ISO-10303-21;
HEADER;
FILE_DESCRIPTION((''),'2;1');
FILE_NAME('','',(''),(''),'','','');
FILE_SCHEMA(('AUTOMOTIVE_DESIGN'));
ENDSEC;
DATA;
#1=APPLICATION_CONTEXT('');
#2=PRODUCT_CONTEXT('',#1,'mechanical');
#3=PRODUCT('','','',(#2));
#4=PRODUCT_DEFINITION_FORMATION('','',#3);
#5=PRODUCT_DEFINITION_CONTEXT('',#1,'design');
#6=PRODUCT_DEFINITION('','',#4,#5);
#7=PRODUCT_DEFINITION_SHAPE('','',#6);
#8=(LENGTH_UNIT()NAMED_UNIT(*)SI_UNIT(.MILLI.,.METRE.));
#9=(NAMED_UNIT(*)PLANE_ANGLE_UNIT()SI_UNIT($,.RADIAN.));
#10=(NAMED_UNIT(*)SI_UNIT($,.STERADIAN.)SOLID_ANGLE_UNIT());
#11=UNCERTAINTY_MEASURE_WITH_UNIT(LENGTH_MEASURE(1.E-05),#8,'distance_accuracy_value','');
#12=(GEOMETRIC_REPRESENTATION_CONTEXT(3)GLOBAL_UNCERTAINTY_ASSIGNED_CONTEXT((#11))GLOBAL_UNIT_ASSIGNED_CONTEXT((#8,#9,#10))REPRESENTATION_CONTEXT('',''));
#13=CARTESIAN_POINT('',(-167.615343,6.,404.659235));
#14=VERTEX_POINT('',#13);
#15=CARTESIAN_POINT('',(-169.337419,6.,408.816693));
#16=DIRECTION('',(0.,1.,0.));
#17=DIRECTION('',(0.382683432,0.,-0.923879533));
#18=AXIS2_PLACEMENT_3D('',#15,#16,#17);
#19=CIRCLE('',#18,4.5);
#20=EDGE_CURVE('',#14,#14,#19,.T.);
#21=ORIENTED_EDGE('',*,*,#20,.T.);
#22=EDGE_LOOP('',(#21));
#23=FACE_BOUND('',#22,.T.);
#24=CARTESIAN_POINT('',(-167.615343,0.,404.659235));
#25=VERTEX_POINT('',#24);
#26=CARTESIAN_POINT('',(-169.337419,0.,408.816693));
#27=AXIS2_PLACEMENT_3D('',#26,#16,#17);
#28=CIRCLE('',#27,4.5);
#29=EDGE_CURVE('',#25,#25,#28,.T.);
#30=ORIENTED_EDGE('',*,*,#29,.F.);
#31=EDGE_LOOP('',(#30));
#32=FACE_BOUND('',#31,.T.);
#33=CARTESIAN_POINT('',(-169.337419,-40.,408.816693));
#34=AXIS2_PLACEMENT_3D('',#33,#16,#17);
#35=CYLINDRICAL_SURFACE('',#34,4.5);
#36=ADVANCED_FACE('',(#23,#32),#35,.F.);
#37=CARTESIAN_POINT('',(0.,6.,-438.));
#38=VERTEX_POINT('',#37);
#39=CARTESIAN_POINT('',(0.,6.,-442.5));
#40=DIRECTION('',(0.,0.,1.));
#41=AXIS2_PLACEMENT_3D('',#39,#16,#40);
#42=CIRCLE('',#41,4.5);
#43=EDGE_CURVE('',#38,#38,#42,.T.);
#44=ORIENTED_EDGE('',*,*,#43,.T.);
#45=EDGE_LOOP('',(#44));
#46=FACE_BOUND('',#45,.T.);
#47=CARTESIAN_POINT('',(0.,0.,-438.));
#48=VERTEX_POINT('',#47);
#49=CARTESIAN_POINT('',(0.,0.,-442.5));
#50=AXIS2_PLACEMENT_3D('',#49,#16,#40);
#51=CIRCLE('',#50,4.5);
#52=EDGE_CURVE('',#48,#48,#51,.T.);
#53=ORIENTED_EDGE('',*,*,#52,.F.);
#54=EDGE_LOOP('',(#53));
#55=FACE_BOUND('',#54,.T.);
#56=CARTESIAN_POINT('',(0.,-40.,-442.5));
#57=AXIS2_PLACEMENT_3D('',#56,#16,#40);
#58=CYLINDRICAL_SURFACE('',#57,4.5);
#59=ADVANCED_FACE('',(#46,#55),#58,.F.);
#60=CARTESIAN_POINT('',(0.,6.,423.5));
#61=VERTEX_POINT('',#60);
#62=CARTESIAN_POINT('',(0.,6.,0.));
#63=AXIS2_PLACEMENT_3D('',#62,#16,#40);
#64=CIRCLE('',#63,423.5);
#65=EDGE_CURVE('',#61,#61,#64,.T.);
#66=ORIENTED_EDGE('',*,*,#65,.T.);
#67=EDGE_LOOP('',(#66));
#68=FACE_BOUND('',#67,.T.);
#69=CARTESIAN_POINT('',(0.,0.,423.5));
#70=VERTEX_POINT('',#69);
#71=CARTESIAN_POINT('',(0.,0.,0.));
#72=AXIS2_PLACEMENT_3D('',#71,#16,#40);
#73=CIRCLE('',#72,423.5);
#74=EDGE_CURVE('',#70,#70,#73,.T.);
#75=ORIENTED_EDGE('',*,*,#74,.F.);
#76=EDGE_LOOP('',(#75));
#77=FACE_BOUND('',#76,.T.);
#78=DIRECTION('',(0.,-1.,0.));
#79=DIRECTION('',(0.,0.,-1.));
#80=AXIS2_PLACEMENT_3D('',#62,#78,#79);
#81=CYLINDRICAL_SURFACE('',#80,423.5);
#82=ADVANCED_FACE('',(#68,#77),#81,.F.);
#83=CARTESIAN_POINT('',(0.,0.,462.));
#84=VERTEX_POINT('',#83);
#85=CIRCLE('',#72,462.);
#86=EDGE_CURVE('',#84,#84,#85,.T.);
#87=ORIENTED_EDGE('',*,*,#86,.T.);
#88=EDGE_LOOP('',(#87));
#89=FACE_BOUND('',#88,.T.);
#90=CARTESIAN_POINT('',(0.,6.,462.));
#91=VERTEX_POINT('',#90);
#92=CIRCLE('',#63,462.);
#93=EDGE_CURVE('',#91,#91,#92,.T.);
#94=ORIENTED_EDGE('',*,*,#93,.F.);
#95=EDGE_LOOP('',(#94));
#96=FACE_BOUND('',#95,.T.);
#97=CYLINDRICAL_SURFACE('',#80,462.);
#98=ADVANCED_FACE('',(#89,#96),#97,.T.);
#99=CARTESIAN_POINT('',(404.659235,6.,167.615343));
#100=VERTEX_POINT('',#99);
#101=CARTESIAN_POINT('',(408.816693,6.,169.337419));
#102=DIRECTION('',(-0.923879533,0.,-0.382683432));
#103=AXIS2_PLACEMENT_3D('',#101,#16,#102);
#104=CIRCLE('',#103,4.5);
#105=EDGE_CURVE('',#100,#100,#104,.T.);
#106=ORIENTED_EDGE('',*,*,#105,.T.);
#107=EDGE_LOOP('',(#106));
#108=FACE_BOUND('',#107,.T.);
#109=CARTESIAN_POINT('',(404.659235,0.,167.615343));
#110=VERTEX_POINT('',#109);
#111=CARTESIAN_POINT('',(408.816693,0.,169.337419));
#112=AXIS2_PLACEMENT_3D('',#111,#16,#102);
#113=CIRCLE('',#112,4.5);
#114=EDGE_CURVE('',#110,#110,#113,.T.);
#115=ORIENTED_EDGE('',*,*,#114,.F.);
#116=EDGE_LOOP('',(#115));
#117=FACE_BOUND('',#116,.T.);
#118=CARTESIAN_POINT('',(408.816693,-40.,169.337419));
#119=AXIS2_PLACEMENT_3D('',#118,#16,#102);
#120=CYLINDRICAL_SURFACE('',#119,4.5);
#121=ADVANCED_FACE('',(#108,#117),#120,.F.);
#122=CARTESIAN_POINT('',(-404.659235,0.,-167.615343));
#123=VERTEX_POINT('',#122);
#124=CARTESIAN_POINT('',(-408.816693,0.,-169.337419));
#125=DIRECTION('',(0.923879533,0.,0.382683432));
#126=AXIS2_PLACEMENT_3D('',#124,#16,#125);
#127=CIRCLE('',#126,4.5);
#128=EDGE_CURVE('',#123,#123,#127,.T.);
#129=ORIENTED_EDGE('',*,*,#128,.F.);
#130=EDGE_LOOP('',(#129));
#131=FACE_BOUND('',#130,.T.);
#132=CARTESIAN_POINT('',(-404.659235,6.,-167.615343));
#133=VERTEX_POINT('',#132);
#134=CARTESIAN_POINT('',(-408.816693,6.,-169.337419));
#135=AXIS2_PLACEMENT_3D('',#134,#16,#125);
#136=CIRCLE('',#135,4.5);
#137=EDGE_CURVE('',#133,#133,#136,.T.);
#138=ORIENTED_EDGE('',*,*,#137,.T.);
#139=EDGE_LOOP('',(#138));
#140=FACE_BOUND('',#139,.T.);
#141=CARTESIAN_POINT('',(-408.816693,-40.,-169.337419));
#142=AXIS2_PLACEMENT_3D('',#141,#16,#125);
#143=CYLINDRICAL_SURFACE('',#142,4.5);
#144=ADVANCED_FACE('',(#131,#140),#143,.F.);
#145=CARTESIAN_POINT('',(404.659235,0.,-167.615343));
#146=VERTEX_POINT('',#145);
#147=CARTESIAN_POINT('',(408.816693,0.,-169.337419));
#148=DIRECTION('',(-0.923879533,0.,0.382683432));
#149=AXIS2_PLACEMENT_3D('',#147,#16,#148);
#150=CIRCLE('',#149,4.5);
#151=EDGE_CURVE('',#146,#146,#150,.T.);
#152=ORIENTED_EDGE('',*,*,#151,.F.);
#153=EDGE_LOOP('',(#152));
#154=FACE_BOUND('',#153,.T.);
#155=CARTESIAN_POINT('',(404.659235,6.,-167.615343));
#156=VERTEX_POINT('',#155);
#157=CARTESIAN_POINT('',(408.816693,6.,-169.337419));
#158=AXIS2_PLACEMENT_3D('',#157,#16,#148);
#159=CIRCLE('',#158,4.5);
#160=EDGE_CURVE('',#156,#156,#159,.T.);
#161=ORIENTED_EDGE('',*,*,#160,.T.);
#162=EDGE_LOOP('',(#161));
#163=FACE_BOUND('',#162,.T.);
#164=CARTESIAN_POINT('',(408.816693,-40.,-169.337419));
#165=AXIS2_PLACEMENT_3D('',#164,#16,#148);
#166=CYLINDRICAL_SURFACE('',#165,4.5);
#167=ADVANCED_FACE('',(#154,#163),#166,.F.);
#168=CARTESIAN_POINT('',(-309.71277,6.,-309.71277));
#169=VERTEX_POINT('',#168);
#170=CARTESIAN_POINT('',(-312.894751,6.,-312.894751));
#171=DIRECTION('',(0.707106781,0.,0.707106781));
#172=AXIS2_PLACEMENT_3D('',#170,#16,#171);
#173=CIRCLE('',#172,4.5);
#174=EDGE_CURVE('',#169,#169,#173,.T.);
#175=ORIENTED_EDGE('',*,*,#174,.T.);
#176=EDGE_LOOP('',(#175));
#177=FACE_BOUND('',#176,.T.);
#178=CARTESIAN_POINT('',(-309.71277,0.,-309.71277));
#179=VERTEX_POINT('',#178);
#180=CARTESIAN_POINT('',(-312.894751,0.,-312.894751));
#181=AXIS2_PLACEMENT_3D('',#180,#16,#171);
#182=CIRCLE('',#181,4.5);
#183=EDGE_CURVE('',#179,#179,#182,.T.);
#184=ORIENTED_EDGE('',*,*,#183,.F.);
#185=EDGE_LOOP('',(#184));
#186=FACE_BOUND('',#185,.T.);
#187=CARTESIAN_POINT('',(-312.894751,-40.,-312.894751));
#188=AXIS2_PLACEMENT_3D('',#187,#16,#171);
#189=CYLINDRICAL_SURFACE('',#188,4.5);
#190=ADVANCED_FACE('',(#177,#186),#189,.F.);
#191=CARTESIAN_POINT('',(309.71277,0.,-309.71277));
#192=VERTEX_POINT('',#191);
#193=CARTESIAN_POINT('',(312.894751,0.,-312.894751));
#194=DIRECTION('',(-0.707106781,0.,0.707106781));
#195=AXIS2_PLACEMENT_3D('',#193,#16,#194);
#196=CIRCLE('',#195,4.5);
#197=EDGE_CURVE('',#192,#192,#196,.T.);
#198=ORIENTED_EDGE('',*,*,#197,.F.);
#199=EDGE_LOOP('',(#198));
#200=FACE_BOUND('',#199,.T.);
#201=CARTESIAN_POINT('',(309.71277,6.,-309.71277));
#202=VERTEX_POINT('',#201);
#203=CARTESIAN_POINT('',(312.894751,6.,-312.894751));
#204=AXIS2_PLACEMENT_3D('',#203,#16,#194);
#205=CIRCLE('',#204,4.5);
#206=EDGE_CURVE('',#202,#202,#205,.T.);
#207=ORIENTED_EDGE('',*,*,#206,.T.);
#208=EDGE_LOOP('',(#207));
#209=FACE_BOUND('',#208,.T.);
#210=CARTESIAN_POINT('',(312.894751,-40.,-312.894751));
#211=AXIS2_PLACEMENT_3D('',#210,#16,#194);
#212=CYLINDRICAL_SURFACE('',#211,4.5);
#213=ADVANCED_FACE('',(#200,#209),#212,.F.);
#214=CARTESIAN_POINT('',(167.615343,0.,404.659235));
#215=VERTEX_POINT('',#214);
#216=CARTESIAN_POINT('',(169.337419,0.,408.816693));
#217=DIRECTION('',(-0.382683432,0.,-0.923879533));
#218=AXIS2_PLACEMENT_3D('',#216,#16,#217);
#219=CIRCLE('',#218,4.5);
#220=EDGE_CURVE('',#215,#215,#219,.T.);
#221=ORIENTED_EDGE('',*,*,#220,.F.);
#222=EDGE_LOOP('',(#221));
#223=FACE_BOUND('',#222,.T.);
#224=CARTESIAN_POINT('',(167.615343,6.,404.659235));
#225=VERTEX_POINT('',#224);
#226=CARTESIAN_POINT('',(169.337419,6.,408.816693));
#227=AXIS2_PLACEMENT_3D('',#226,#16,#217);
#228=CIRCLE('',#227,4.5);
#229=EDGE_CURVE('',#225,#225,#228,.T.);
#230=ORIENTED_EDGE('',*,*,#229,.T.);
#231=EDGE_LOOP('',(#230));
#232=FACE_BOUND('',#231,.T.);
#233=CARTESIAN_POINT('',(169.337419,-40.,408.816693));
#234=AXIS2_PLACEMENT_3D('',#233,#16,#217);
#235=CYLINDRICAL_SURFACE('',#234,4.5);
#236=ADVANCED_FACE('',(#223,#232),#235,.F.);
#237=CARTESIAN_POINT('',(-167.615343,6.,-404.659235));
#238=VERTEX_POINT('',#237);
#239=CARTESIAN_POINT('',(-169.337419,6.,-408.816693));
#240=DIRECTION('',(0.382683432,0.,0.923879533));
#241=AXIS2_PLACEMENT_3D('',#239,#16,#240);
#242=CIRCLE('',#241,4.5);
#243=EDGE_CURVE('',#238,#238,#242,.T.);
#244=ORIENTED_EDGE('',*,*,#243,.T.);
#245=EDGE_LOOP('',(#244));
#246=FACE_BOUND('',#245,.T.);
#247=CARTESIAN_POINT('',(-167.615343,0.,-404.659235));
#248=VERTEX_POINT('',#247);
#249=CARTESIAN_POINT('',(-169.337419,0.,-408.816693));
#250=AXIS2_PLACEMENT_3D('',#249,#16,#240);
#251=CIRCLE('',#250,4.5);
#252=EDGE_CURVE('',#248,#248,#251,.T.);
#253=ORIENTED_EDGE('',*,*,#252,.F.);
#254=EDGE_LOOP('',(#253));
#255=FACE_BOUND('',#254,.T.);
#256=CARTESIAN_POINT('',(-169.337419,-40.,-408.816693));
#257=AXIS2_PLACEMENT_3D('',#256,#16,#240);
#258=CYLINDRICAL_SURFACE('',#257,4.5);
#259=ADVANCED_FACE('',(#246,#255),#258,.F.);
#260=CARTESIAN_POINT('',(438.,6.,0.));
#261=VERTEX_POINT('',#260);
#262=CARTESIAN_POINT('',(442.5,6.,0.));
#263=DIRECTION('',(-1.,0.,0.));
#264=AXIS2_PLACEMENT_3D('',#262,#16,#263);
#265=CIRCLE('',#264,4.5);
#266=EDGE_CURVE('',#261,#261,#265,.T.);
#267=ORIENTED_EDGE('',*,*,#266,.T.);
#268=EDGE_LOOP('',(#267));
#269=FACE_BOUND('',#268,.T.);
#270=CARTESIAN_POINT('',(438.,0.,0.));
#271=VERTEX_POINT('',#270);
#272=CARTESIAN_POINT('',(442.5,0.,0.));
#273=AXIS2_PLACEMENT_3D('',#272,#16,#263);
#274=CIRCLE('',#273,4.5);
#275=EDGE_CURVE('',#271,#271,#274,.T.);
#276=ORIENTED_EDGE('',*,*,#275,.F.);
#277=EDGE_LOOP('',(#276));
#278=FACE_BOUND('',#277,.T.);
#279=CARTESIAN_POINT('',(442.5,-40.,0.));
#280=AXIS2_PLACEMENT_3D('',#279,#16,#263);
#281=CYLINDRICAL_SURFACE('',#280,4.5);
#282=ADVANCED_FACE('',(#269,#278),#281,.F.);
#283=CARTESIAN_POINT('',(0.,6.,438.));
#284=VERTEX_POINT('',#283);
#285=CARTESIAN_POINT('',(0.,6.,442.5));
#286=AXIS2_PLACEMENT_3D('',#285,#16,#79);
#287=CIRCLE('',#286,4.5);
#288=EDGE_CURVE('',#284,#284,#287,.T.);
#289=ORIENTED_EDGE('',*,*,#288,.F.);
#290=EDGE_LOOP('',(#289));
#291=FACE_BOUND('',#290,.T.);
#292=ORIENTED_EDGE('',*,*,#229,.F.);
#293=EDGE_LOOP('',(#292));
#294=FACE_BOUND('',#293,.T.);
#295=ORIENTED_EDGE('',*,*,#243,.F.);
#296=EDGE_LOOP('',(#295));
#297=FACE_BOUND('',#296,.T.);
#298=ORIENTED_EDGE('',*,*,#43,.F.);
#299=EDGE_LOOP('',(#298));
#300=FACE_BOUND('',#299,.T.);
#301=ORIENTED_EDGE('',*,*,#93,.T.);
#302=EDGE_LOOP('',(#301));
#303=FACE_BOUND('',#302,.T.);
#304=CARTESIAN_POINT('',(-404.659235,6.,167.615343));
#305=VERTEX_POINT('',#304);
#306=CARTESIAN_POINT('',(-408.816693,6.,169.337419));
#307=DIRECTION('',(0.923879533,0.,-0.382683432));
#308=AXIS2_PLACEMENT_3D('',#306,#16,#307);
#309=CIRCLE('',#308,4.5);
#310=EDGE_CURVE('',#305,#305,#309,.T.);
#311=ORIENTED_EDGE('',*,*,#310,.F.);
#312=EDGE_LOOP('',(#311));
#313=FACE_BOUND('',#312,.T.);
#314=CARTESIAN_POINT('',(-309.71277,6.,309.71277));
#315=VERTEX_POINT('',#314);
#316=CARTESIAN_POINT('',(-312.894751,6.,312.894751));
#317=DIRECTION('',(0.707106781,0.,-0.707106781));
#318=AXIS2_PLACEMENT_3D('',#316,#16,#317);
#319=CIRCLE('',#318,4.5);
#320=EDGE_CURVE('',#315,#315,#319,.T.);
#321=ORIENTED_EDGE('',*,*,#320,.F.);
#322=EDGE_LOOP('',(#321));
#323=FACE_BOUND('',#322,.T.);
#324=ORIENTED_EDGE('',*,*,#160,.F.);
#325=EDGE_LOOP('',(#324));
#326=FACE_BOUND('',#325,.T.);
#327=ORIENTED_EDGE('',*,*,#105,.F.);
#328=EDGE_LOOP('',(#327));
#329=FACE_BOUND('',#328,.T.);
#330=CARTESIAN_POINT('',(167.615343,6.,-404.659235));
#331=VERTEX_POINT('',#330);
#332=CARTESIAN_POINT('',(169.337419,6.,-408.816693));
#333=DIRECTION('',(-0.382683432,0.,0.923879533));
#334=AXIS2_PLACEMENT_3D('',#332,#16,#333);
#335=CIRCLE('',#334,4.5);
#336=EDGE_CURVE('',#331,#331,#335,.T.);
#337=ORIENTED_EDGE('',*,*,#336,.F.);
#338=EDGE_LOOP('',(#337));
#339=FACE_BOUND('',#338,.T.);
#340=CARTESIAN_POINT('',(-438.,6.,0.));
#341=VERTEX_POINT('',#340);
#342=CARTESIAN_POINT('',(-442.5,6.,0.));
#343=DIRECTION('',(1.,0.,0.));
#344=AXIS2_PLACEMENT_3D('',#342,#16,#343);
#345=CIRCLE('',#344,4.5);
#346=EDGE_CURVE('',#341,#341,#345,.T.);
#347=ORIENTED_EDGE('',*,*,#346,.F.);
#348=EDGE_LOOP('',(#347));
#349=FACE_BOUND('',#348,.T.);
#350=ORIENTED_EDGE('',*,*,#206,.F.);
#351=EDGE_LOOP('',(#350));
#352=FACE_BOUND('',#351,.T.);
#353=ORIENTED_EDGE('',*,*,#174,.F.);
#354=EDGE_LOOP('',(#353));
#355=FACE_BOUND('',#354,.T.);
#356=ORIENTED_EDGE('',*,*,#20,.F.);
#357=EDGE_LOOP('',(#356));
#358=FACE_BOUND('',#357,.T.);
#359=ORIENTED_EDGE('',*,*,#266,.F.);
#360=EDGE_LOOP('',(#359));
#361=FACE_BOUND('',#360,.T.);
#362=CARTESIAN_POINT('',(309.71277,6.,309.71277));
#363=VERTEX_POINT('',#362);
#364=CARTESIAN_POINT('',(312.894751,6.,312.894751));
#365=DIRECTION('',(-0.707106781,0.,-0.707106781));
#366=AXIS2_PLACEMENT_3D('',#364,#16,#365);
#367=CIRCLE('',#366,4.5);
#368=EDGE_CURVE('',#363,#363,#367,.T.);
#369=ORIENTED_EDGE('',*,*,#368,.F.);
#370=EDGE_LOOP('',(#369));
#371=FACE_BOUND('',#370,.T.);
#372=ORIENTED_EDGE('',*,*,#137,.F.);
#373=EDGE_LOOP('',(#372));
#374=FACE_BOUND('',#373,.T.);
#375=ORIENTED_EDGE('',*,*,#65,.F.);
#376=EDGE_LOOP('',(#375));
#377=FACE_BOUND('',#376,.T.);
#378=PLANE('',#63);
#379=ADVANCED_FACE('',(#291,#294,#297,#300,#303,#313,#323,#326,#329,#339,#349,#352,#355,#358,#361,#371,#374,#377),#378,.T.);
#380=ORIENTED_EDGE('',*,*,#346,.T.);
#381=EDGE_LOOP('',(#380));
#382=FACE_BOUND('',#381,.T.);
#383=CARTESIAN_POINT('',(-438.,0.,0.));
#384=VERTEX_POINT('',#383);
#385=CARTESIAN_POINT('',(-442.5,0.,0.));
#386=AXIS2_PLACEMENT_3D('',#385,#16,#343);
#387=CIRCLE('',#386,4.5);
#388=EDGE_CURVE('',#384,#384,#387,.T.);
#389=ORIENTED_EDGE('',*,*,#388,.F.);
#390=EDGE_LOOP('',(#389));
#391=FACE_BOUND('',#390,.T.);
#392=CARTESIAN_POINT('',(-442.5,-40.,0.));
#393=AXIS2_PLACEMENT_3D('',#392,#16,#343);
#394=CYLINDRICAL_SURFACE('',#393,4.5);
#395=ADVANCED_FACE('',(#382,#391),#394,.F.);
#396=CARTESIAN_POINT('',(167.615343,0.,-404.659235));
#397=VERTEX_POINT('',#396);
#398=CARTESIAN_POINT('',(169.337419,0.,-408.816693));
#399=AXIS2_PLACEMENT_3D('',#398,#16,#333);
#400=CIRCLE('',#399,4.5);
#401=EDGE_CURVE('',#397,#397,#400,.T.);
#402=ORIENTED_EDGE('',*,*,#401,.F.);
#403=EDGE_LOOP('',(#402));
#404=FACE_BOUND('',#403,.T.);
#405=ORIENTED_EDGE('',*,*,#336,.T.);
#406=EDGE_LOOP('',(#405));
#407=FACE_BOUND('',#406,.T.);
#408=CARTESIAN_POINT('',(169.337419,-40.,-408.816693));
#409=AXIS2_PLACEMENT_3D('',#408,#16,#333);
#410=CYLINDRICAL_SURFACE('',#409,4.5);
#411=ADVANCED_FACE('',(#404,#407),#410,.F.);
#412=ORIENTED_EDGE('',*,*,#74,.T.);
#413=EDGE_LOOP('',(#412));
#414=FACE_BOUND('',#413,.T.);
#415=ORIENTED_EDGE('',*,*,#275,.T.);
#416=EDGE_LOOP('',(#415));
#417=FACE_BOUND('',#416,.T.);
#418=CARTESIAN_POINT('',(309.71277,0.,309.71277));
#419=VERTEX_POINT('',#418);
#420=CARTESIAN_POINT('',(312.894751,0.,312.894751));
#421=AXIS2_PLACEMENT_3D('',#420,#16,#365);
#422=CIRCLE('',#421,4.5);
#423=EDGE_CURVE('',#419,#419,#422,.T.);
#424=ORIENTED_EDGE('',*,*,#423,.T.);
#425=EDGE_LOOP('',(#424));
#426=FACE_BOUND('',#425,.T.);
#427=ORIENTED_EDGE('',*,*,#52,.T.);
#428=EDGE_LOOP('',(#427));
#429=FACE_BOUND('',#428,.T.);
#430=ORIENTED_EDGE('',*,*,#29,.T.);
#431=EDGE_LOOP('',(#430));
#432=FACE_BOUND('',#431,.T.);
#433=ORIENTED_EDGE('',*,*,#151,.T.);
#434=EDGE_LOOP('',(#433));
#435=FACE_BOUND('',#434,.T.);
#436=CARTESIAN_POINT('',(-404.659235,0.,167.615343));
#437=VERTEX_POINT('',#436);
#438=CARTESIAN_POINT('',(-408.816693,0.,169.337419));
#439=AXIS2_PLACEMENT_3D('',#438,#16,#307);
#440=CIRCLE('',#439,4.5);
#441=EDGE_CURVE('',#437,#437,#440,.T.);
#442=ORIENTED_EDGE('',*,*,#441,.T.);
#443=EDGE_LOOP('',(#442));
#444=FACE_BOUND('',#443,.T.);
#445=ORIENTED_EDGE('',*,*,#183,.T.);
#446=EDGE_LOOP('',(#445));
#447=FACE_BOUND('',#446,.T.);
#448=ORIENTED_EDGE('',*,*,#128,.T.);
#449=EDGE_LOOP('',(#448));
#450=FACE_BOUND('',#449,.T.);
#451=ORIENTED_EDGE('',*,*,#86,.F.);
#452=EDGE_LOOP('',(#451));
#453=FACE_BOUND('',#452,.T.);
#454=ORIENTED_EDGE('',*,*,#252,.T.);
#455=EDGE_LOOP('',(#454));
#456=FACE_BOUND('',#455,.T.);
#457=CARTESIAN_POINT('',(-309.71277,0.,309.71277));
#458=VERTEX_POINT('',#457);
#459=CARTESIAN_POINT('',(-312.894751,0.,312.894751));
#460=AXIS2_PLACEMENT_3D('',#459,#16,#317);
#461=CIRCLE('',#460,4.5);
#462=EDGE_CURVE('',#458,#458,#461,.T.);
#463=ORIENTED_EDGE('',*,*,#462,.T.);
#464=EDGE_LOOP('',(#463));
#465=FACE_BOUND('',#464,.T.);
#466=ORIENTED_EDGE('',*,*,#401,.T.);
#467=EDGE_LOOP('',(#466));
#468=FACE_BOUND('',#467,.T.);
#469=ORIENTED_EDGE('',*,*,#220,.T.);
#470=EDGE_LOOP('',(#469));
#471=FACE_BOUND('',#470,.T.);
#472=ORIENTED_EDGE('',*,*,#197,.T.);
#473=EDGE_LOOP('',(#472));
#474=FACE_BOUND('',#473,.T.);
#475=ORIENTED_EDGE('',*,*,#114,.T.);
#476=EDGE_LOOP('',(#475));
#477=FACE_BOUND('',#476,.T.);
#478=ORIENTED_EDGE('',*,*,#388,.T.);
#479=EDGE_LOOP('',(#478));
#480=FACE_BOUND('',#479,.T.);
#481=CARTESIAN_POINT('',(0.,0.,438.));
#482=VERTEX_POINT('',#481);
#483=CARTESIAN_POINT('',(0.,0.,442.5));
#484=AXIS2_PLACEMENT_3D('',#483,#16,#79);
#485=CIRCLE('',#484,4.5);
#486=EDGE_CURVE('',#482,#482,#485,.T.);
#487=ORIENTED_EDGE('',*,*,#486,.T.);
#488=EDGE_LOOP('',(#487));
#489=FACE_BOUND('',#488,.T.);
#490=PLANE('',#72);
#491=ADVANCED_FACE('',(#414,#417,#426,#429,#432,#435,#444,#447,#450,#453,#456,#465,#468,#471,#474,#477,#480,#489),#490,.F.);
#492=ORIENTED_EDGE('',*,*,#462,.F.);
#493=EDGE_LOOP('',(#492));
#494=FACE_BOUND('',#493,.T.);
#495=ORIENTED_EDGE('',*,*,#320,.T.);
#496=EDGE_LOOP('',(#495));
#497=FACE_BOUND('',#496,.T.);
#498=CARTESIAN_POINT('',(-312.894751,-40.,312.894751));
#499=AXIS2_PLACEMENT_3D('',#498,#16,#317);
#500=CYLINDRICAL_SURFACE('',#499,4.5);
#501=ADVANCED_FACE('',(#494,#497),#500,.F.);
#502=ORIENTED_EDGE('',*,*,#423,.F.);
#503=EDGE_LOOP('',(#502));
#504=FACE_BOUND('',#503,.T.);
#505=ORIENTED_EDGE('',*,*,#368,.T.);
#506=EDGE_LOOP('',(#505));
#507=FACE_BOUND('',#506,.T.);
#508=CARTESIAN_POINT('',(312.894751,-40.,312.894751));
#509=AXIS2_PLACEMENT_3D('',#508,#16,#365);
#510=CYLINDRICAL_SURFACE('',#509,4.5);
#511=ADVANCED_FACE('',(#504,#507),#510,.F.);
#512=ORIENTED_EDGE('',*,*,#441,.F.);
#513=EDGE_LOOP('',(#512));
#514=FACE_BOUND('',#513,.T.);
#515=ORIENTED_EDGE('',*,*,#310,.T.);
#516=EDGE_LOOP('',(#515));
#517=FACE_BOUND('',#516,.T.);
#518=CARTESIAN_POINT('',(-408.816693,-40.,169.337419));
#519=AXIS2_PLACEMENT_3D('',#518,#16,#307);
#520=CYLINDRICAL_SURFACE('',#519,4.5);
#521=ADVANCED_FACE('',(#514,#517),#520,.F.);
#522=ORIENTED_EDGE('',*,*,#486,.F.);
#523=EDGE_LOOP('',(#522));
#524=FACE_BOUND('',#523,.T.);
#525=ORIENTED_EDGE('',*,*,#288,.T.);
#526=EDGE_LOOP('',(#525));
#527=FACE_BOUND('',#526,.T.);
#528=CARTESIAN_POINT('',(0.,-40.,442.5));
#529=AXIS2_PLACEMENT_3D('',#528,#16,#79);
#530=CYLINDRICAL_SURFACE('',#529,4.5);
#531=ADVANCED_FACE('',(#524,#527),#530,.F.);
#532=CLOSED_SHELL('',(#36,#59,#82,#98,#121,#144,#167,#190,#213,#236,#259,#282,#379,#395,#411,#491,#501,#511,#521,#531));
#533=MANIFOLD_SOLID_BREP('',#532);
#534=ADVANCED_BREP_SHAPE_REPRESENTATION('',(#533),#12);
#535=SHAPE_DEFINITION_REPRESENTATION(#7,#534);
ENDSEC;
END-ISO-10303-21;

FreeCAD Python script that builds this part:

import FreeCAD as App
import Part
import Sketcher
from FreeCAD import Vector

doc = App.newDocument("Part")
body = doc.addObject("PartDesign::Body", "Body")

sketch1 = doc.addObject("Sketcher::SketchObject", "Sketch")
body.addObject(sketch1)
sketch1.AttachmentSupport = (doc.XZ_Plane, [""])
sketch1.MapMode = "FlatFace"
sketch1.addGeometry([
    Part.Circle(Vector(0, 0, 0), Vector(0, 0, 1), 462),
    Part.Circle(Vector(0, 0, 0), Vector(0, 0, 1), 424),
], False)
sketch1.addConstraint([
    Sketcher.Constraint("Coincident", 0, 3, -1, 1),
    Sketcher.Constraint("Coincident", 1, 3, -1, 1),
    Sketcher.Constraint("Diameter", 0, 924.0),
    Sketcher.Constraint("Diameter", 1, 847.0),
])
pad1 = doc.addObject("PartDesign::Pad", "Pad")
body.addObject(pad1)
pad1.Profile = sketch1
pad1.Length = 6
pad1.Reversed = True

sketch2 = doc.addObject("Sketcher::SketchObject", "Sketch001")
body.addObject(sketch2)
sketch2.AttachmentSupport = (doc.XZ_Plane, [""])
sketch2.MapMode = "FlatFace"
sketch2.AttachmentOffset = App.Placement(Vector(0, 0, -6), App.Rotation())
sketch2.addGeometry(Part.Circle(Vector(0, -442.5, 0), Vector(0, 0, 1), 4.5), False)
sketch2.addConstraint([
    Sketcher.Constraint("PointOnObject", 0, 3, -2),
    Sketcher.Constraint("Diameter", 0, 9.0),
    Sketcher.Constraint("DistanceY", 0, 3, -1, 1, 442.5),
])
pocket1 = doc.addObject("PartDesign::Pocket", "Pocket")
body.addObject(pocket1)
pocket1.Profile = sketch2
pocket1.Length = 46
pocket1.Reversed = True
doc.recompute()

polarpattern = doc.addObject("PartDesign::PolarPattern", "PolarPattern")
body.addObject(polarpattern)
polarpattern.Originals = [pocket1]
polarpattern.Axis = (doc.Y_Axis, [""])
polarpattern.Angle = 360
polarpattern.Occurrences = 16
body.Tip = polarpattern

doc.recompute()
